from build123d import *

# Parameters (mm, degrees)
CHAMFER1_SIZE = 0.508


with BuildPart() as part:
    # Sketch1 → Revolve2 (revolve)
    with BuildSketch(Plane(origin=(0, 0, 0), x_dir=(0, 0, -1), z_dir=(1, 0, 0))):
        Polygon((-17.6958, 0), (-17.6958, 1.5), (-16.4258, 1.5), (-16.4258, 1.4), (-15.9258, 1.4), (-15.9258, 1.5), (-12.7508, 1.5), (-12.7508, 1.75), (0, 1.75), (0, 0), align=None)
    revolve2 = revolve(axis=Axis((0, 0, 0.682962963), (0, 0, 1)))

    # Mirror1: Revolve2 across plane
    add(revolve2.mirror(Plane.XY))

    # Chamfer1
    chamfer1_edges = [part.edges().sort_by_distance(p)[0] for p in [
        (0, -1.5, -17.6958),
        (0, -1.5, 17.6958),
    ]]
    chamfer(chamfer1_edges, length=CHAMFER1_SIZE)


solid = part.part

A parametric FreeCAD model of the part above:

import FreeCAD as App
import Part
import Sketcher

V = App.Vector
Q = App.Units.Quantity


def edges_at(feature, points):
    """Names of the edges that pass closest to the given points."""
    edges = feature.Shape.Edges
    near = lambda p: min(range(len(edges)), key=lambda i: edges[i].distToShape(Part.Vertex(*p))[0])
    return sorted({f"Edge{near(p) + 1}" for p in points})


def add_polygon(sketch, points):
    """Adds a closed chain of lines whose ends are joined by coincident constraints."""
    first, n = sketch.GeometryCount, len(points)
    for a, b in zip(points, points[1:] + points[:1]):
        sketch.addGeometry(Part.LineSegment(App.Vector(*a, 0), App.Vector(*b, 0)), False)
    for i in range(n):
        sketch.addConstraint(Sketcher.Constraint("Coincident", first + i, 2, first + (i + 1) % n, 1))

doc = App.newDocument("Part")
params = doc.addObject("Spreadsheet::Sheet", "Params")
for row, (alias, value) in enumerate([
    ("sketch1_height", "0.05 in"),
    ("sketch1_height2", "0.502 in"),
    ("sketch1_height3", "0.125 in"),
    ("revolution_angle", "360 deg"),
    ("chamfer_size", "0.02 in"),
], start=1):
    params.set(f"A{row}", alias)
    params.set(f"B{row}", "=" + value)
    params.setAlias(f"B{row}", alias)

body = doc.addObject("PartDesign::Body", "Body")

# Sketch on YZ plane
sketch1 = body.newObject("Sketcher::SketchObject", "Sketch")
sketch1.AttachmentSupport = (doc.getObject("YZ_Plane"), [""])
sketch1.MapMode = "FlatFace"
add_polygon(sketch1, [(1.5, 17.6958), (0, 17.6958), (0, 0), (1.75, 0), (1.75, 12.7508), (1.5, 12.7508), (1.5, 15.9258), (1.4, 15.9258), (1.4, 16.4258), (1.5, 16.4258)])  # lines 0-9
sketch1.addConstraint([
    Sketcher.Constraint("Horizontal", 0),
    Sketcher.Constraint("Vertical", 1),
    Sketcher.Constraint("Horizontal", 2),
    Sketcher.Constraint("Vertical", 3),
    Sketcher.Constraint("Horizontal", 4),
    Sketcher.Constraint("Vertical", 5),
    Sketcher.Constraint("Horizontal", 6),
    Sketcher.Constraint("Vertical", 7),
    Sketcher.Constraint("Horizontal", 8),
    Sketcher.Constraint("Vertical", 9),
    Sketcher.Constraint("Coincident", 1, 2, -1, 1),
    Sketcher.Constraint("Vertical", 5, 2, 8, 2),
    Sketcher.Constraint("DistanceY", 9, 1, 9, 2, Q("0.05 in")),
    Sketcher.Constraint("DistanceY", 3, 1, 3, 2, Q("0.502 in")),
    Sketcher.Constraint("DistanceY", 5, 1, 5, 2, Q("0.125 in")),
    Sketcher.Constraint("DistanceX", 0, 2, 0, 1, Q("1.5 mm")),
    Sketcher.Constraint("DistanceX", 2, 1, 2, 2, Q("1.75 mm")),
    Sketcher.Constraint("DistanceX", 6, 2, 6, 1, Q("0.1 mm")),
    Sketcher.Constraint("DistanceY", 1, 2, 1, 1, Q("17.6958 mm")),
])
sketch1.setExpression("Constraints[22]", "Params.sketch1_height")
sketch1.setExpression("Constraints[23]", "Params.sketch1_height2")
sketch1.setExpression("Constraints[24]", "Params.sketch1_height3")
revolution = body.newObject("PartDesign::Revolution", "Revolution")
revolution.Profile = sketch1
revolution.ReferenceAxis = (sketch1, ["V_Axis"])
revolution.setExpression("Angle", "Params.revolution_angle")
doc.recompute()

mirrored = body.newObject("PartDesign::Mirrored", "Mirrored")
mirrored.Originals = [revolution]
mirrored.MirrorPlane = (doc.getObject("XY_Plane"), [""])
body.Tip = mirrored
doc.recompute()

chamfer = body.newObject("PartDesign::Chamfer", "Chamfer")
chamfer.Base = (mirrored, edges_at(mirrored, [(0, -1.5, -17.696), (0, -1.5, 17.696)]))
chamfer.setExpression("Size", "Params.chamfer_size")

doc.recompute()
